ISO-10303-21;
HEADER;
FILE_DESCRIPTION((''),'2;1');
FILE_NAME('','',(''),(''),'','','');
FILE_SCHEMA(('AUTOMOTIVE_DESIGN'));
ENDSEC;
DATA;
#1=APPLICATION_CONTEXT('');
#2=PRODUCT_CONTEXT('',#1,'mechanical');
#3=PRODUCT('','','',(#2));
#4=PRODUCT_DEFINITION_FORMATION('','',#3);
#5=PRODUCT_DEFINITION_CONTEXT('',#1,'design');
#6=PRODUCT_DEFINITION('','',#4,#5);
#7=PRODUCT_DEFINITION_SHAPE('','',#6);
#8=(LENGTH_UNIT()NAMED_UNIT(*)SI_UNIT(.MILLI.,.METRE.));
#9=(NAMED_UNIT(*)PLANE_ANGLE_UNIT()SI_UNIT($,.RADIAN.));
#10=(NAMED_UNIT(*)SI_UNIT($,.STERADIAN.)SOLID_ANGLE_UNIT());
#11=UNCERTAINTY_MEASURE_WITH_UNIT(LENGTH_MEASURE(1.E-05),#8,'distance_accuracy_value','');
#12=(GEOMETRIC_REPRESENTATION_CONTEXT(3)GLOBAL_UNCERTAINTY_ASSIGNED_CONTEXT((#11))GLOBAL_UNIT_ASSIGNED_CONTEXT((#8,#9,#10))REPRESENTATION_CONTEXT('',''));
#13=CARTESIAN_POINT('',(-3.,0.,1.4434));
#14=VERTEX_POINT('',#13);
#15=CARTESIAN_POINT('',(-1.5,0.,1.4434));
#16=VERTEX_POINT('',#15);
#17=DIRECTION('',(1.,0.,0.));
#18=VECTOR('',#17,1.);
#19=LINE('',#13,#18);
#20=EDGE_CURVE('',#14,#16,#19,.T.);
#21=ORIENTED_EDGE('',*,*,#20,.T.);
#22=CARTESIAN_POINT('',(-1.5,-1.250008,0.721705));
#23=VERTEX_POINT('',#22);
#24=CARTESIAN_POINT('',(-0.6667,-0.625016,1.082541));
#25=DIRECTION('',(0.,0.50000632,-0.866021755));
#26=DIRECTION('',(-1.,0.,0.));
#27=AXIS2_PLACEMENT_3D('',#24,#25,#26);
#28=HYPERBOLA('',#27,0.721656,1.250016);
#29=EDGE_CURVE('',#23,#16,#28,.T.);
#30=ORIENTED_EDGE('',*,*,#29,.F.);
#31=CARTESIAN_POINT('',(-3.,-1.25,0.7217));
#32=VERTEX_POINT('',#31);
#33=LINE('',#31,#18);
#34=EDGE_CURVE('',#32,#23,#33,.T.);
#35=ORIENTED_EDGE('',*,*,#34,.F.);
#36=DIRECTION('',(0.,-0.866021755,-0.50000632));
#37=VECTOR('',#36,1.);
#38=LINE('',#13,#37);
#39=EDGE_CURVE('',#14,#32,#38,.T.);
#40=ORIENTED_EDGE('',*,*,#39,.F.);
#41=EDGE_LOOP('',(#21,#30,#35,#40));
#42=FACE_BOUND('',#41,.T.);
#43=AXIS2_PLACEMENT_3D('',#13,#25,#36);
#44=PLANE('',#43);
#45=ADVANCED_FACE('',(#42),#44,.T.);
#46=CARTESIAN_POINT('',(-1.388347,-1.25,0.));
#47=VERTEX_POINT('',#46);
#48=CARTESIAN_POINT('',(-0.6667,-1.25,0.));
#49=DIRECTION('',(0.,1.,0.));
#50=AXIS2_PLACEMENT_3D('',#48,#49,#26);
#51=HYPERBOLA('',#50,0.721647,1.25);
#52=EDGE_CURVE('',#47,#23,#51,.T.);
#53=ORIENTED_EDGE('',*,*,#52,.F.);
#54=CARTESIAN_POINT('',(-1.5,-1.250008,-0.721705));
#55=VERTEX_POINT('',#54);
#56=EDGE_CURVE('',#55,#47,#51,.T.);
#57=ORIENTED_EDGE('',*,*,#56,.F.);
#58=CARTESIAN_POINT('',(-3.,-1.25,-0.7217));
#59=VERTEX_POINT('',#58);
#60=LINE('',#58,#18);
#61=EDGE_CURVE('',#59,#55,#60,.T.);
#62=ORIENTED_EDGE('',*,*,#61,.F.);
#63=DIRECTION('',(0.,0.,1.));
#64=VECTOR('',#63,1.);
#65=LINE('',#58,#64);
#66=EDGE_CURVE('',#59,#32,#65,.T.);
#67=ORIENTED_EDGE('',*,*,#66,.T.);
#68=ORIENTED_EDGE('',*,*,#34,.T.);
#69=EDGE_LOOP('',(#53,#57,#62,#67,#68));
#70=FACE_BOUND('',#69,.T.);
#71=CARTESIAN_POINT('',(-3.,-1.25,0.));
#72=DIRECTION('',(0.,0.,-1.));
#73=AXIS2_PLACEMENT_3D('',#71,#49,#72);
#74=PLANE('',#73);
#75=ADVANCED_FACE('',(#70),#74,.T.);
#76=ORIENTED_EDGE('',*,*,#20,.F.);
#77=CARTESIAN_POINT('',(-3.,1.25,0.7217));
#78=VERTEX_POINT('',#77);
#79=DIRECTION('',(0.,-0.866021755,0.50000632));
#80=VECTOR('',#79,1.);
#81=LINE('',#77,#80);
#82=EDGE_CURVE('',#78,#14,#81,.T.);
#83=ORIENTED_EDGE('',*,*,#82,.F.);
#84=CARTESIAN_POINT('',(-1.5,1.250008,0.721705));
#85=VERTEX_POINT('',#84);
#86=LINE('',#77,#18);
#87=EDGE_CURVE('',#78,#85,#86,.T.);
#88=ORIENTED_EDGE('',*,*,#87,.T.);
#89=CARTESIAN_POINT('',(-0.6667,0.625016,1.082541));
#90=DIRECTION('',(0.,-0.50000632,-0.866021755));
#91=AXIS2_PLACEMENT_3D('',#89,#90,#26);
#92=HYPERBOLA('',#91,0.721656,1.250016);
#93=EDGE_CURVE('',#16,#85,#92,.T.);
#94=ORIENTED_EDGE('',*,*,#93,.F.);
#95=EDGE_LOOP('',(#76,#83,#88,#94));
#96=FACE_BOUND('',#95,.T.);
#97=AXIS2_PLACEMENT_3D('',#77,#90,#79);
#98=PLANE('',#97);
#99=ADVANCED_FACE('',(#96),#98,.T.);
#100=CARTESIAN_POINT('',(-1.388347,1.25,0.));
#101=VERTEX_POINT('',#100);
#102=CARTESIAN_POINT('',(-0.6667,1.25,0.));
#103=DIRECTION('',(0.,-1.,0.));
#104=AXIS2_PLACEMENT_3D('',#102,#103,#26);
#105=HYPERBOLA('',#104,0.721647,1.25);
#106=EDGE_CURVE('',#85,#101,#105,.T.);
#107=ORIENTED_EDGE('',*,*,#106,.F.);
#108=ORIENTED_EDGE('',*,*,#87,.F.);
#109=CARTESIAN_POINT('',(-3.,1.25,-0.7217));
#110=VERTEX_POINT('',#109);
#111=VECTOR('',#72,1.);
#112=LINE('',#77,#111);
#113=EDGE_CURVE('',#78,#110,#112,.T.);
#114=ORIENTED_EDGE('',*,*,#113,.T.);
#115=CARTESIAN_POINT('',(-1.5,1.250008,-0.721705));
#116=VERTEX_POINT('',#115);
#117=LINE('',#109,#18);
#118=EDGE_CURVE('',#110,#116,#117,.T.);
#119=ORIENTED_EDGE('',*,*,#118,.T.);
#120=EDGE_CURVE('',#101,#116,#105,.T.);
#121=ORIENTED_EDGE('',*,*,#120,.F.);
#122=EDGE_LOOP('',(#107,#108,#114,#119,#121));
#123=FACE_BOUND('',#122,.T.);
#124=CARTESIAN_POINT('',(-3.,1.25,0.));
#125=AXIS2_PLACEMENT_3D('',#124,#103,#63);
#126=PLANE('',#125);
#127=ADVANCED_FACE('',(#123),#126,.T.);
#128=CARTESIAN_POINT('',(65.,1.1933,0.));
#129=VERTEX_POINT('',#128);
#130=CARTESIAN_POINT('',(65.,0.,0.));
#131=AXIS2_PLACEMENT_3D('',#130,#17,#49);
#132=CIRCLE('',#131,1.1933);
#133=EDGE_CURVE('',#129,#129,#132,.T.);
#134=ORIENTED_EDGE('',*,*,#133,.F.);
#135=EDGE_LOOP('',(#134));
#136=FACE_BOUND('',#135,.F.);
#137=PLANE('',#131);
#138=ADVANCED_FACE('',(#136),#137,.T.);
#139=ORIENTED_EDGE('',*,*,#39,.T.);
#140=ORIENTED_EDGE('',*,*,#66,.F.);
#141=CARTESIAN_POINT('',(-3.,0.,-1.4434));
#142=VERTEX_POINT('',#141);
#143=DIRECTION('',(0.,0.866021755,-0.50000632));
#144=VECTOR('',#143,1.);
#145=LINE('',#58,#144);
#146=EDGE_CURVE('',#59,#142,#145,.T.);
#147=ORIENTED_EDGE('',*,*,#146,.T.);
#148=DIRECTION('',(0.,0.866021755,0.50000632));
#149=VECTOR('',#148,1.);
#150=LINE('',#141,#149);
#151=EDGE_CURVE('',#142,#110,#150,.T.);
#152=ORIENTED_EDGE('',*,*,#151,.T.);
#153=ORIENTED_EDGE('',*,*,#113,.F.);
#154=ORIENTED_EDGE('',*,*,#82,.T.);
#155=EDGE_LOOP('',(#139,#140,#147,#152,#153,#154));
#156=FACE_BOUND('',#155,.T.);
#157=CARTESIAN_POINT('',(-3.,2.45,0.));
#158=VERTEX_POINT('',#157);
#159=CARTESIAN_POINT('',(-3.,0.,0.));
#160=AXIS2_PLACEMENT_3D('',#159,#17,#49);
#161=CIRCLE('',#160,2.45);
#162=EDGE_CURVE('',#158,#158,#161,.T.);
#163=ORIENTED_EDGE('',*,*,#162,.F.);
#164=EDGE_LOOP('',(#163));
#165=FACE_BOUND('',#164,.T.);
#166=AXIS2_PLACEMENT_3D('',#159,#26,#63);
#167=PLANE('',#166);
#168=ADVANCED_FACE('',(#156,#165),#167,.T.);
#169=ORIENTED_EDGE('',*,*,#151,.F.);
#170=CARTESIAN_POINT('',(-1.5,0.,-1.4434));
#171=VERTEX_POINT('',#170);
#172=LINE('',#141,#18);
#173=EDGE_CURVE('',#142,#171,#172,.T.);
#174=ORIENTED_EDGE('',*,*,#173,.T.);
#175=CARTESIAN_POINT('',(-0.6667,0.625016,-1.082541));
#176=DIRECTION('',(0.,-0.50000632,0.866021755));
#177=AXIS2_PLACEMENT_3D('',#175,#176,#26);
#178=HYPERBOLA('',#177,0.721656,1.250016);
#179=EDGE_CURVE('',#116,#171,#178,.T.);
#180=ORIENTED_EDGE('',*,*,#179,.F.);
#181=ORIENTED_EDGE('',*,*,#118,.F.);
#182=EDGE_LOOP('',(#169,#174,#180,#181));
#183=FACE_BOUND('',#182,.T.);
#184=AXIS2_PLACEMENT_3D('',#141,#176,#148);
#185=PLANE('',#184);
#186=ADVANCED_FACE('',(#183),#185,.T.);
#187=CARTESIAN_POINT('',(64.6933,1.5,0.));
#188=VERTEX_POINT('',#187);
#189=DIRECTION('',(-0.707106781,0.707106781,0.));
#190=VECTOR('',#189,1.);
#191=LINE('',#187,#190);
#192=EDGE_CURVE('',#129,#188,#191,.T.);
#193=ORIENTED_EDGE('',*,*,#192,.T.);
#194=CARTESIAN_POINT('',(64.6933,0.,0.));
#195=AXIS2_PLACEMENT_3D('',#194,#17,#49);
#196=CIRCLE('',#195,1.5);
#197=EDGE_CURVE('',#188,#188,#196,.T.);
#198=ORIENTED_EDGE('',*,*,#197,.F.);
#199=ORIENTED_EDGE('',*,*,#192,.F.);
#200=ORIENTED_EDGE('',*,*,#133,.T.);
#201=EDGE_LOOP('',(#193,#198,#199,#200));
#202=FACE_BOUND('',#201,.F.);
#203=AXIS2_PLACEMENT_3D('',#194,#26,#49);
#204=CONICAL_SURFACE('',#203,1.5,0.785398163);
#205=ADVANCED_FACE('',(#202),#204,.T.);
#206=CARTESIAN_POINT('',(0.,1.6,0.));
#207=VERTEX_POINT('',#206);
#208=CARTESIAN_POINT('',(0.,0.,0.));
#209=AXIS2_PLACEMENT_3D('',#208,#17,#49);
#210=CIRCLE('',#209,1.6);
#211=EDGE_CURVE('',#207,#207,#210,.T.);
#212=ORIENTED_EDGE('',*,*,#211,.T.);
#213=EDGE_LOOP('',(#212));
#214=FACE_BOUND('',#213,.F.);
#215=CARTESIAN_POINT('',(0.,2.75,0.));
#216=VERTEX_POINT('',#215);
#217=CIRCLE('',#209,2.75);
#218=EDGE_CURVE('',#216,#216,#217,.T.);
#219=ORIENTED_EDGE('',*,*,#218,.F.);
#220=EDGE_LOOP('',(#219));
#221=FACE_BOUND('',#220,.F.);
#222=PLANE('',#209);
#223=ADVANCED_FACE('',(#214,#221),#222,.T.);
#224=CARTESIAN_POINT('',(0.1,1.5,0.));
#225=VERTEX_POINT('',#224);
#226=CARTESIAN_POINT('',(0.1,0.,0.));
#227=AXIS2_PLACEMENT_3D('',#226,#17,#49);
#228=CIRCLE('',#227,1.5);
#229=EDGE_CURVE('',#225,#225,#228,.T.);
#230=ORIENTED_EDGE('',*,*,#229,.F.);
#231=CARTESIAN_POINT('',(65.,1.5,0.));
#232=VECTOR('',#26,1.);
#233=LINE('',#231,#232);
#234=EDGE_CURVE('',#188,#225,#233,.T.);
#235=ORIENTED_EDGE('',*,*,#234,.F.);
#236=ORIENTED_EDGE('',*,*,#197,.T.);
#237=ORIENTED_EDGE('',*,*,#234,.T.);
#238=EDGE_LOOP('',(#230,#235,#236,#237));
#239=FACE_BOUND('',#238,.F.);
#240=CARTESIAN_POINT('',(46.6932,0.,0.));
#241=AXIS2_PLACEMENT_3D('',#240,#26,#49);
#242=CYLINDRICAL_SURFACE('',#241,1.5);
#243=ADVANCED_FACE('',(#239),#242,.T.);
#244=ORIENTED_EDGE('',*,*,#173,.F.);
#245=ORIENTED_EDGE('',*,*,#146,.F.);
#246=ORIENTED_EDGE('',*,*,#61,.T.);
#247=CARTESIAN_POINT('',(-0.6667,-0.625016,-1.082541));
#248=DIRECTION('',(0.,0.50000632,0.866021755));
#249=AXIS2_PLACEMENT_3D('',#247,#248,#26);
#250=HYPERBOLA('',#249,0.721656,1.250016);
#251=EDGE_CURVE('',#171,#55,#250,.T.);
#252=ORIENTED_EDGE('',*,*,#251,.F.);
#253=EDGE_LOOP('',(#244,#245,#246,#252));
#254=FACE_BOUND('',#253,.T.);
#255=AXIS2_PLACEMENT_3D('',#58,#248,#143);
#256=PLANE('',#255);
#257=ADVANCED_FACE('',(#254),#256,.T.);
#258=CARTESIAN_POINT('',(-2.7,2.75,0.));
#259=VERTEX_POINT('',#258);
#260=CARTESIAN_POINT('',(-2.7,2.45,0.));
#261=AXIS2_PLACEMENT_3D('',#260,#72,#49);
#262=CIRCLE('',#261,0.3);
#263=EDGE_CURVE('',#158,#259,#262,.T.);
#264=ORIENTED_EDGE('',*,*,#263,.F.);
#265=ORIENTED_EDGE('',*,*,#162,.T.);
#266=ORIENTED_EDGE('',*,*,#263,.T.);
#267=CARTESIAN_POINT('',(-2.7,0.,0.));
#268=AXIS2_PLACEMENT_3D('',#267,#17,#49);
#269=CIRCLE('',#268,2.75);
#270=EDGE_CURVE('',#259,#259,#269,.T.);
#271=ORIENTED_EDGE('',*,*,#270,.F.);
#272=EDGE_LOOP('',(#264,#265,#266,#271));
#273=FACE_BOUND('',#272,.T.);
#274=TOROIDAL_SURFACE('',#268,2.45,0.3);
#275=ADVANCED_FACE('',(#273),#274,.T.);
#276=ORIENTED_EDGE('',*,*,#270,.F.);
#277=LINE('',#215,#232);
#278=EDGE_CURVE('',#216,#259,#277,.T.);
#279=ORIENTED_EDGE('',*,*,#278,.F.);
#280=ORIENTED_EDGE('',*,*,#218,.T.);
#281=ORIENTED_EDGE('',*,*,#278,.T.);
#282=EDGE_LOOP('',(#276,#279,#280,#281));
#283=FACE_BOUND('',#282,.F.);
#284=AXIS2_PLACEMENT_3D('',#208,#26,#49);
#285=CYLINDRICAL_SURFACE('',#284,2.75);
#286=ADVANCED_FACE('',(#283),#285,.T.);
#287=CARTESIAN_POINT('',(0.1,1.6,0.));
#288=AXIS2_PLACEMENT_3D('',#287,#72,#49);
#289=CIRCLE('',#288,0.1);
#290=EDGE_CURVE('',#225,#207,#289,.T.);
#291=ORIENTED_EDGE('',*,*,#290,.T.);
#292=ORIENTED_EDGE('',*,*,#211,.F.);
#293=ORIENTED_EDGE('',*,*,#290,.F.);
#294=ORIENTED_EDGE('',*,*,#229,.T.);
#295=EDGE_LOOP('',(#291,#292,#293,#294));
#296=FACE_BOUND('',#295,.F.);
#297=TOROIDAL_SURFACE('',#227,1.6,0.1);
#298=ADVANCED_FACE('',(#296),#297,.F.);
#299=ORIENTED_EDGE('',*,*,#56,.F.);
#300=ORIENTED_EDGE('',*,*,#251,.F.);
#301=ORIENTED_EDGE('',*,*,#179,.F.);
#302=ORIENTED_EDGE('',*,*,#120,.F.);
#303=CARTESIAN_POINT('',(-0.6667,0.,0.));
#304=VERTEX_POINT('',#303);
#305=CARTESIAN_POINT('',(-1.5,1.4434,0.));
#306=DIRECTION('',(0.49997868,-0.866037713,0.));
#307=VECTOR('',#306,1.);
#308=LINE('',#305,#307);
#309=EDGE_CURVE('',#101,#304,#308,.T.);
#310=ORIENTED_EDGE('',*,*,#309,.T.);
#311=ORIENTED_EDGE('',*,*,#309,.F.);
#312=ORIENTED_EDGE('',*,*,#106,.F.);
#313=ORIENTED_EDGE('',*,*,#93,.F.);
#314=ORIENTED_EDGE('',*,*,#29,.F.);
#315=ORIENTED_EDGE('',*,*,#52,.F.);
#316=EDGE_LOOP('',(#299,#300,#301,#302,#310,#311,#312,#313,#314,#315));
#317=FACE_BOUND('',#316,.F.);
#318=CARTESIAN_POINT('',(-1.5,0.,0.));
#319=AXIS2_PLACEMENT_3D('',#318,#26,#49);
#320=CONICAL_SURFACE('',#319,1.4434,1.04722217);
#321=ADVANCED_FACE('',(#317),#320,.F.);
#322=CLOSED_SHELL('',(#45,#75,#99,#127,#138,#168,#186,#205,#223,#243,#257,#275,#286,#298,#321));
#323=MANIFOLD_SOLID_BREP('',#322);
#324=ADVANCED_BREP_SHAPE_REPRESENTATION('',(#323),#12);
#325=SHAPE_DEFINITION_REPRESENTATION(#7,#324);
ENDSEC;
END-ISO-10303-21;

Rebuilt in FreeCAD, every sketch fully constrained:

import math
import FreeCAD as App
import Part
import Sketcher
Q = App.Units.Quantity


def edges_at(feature, points):
    """Names of the edges that pass closest to the given points."""
    edges = feature.Shape.Edges
    near = lambda p: min(range(len(edges)), key=lambda i: edges[i].distToShape(Part.Vertex(*p))[0])
    return sorted({f"Edge{near(p) + 1}" for p in points})


def add_polygon(sketch, points):
    """Adds a closed chain of lines whose ends are joined by coincident constraints."""
    first, n = sketch.GeometryCount, len(points)
    for a, b in zip(points, points[1:] + points[:1]):
        sketch.addGeometry(Part.LineSegment(App.Vector(*a, 0), App.Vector(*b, 0)), False)
    for i in range(n):
        sketch.addConstraint(Sketcher.Constraint("Coincident", first + i, 2, first + (i + 1) % n, 1))

doc = App.newDocument("Part")
body = doc.addObject("PartDesign::Body", "Body")

sketch1 = body.newObject("Sketcher::SketchObject", "Sketch")
sketch1.AttachmentSupport = (doc.getObject("XY_Plane"), [""])
sketch1.MapMode = "FlatFace"
add_polygon(sketch1, [(-1.5, 1.4), (-0.7, 0), (65, 0), (65, 1.5), (0, 1.5), (0, 2.8), (-3, 2.8), (-3, 1.4)])
sketch1.addConstraint(Sketcher.Constraint("Horizontal", 1))
sketch1.addConstraint(Sketcher.Constraint("Vertical", 2))
sketch1.addConstraint(Sketcher.Constraint("Horizontal", 3))
sketch1.addConstraint(Sketcher.Constraint("Vertical", 4))
sketch1.addConstraint(Sketcher.Constraint("Horizontal", 5))
sketch1.addConstraint(Sketcher.Constraint("Vertical", 6))
sketch1.addConstraint(Sketcher.Constraint("Horizontal", 7))
sketch1.addConstraint(Sketcher.Constraint("PointOnObject", 0, 2, -1))
sketch1.addConstraint(Sketcher.Constraint("PointOnObject", 3, 2, -2))
sketch1.addConstraint(Sketcher.Constraint("Equal", 7, 2))
sketch1.addConstraint(Sketcher.Constraint("DistanceX", 3, 2, 3, 1, Q("65 mm")))
sketch1.addConstraint(Sketcher.Constraint("DistanceX", 5, 2, 5, 1, Q("3 mm")))
sketch1.addConstraint(Sketcher.Constraint("DistanceX", 7, 1, 7, 2, Q("1.5 mm")))
sketch1.addConstraint(Sketcher.Constraint("DistanceY", 4, 1, 4, 2, Q("1.25 mm")))
sketch1.addConstraint(Sketcher.Constraint("DistanceX", 1, 1, 1, 2, Q("65.6667 mm")))
sketch1.addConstraint(Sketcher.Constraint("DistanceY", 6, 2, 6, 1, Q("1.3066 mm")))
revolution = body.newObject("PartDesign::Revolution", "Revolution")
revolution.Profile = sketch1
revolution.ReferenceAxis = (sketch1, ["H_Axis"])
revolution.Angle = 360

sketch2 = body.newObject("Sketcher::SketchObject", "Sketch001")
sketch2.AttachmentSupport = (doc.getObject("YZ_Plane"), [""])
sketch2.MapMode = "FlatFace"
sketch2.AttachmentOffset = App.Placement(App.Vector(0, 0, -3), App.Rotation())
sketch2.addGeometry(Part.LineSegment(App.Vector(1.2, 0.7, 0), App.Vector(0, 1.4, 0)), False)
sketch2.addGeometry(Part.ArcOfCircle(Part.Circle(App.Vector(0, 0, 0), App.Vector(0, 0, 1), 1.4), math.radians(30), math.radians(90)), False)
sketch2.addGeometry(Part.ArcOfCircle(Part.Circle(App.Vector(0, 0, 0), App.Vector(0, 0, 1), 1.4), math.radians(90), math.radians(150)), False)
sketch2.addGeometry(Part.LineSegment(App.Vector(0, 1.4, 0), App.Vector(-1.2, 0.7, 0)), False)
sketch2.addGeometry(Part.ArcOfCircle(Part.Circle(App.Vector(0, 0, 0), App.Vector(0, 0, 1), 1.4), math.radians(-30), math.radians(30)), False)
sketch2.addGeometry(Part.LineSegment(App.Vector(1.2, 0.7, 0), App.Vector(1.2, -0.7, 0)), False)
sketch2.addGeometry(Part.LineSegment(App.Vector(-1.2, 0.7, 0), App.Vector(-1.2, -0.7, 0)), False)
sketch2.addGeometry(Part.ArcOfCircle(Part.Circle(App.Vector(0, 0, 0), App.Vector(0, 0, 1), 1.4), math.radians(150), math.radians(210)), False)
sketch2.addGeometry(Part.LineSegment(App.Vector(-1.2, -0.7, 0), App.Vector(0, -1.4, 0)), False)
sketch2.addGeometry(Part.ArcOfCircle(Part.Circle(App.Vector(0, 0, 0), App.Vector(0, 0, 1), 1.4), math.radians(-150), math.radians(-90)), False)
sketch2.addGeometry(Part.ArcOfCircle(Part.Circle(App.Vector(0, 0, 0), App.Vector(0, 0, 1), 1.4), math.radians(-90), math.radians(-30)), False)
sketch2.addGeometry(Part.LineSegment(App.Vector(0, -1.4, 0), App.Vector(1.2, -0.7, 0)), False)
sketch2.addConstraint(Sketcher.Constraint("Coincident", 0, 1, 1, 1))
sketch2.addConstraint(Sketcher.Constraint("Coincident", 1, 2, 0, 2))
sketch2.addConstraint(Sketcher.Constraint("Coincident", 2, 1, 3, 1))
sketch2.addConstraint(Sketcher.Constraint("Coincident", 3, 2, 2, 2))
sketch2.addConstraint(Sketcher.Constraint("Coincident", 4, 1, 5, 2))
sketch2.addConstraint(Sketcher.Constraint("Coincident", 5, 1, 4, 2))
sketch2.addConstraint(Sketcher.Constraint("Coincident", 6, 1, 7, 1))
sketch2.addConstraint(Sketcher.Constraint("Coincident", 7, 2, 6, 2))
sketch2.addConstraint(Sketcher.Constraint("Coincident", 8, 1, 9, 1))
sketch2.addConstraint(Sketcher.Constraint("Coincident", 9, 2, 8, 2))
sketch2.addConstraint(Sketcher.Constraint("Coincident", 10, 1, 11, 1))
sketch2.addConstraint(Sketcher.Constraint("Coincident", 11, 2, 10, 2))
sketch2.addConstraint(Sketcher.Constraint("Vertical", 5))
sketch2.addConstraint(Sketcher.Constraint("Vertical", 6))
sketch2.addConstraint(Sketcher.Constraint("Coincident", 1, 3, -1, 1))
sketch2.addConstraint(Sketcher.Constraint("Coincident", 2, 3, -1, 1))
sketch2.addConstraint(Sketcher.Constraint("Coincident", 4, 3, -1, 1))
sketch2.addConstraint(Sketcher.Constraint("Coincident", 7, 3, -1, 1))
sketch2.addConstraint(Sketcher.Constraint("Coincident", 9, 3, -1, 1))
sketch2.addConstraint(Sketcher.Constraint("Coincident", 10, 3, -1, 1))
sketch2.addConstraint(Sketcher.Constraint("Coincident", 2, 1, 1, 2))
sketch2.addConstraint(Sketcher.Constraint("Coincident", 5, 1, 0, 1))
sketch2.addConstraint(Sketcher.Constraint("Coincident", 6, 1, 3, 2))
sketch2.addConstraint(Sketcher.Constraint("Coincident", 8, 1, 7, 2))
sketch2.addConstraint(Sketcher.Constraint("Coincident", 10, 1, 9, 2))
sketch2.addConstraint(Sketcher.Constraint("PointOnObject", 1, 2, -2))
sketch2.addConstraint(Sketcher.Constraint("PointOnObject", 9, 2, -2))
sketch2.addConstraint(Sketcher.Constraint("Parallel", 0, 8))
sketch2.addConstraint(Sketcher.Constraint("Parallel", 3, 11))
sketch2.addConstraint(Sketcher.Constraint("Angle", 0, Q("149.9996 deg")))
sketch2.addConstraint(Sketcher.Constraint("Radius", 1, Q("1.4434 mm")))
pad1 = body.newObject("PartDesign::Pad", "Pad")
pad1.Profile = sketch2
pad1.Type = "UpToFirst"
doc.recompute()

fillet = body.newObject("PartDesign::Fillet", "Fillet")
fillet.Base = (pad1, edges_at(pad1, [(-3, -2.75, 0)]))
fillet.Radius = 0.3
doc.recompute()

chamfer = body.newObject("PartDesign::Chamfer", "Chamfer")
chamfer.Base = (fillet, edges_at(fillet, [(65, -1.5, 0)]))
chamfer.ChamferType = "Two distances"
chamfer.Size = 0.3067
chamfer.Size2 = 0.3067
doc.recompute()

fillet2 = body.newObject("PartDesign::Fillet", "Fillet001")
fillet2.Base = (chamfer, edges_at(chamfer, [(0, -1.5, 0)]))
fillet2.Radius = 0.1

doc.recompute()
